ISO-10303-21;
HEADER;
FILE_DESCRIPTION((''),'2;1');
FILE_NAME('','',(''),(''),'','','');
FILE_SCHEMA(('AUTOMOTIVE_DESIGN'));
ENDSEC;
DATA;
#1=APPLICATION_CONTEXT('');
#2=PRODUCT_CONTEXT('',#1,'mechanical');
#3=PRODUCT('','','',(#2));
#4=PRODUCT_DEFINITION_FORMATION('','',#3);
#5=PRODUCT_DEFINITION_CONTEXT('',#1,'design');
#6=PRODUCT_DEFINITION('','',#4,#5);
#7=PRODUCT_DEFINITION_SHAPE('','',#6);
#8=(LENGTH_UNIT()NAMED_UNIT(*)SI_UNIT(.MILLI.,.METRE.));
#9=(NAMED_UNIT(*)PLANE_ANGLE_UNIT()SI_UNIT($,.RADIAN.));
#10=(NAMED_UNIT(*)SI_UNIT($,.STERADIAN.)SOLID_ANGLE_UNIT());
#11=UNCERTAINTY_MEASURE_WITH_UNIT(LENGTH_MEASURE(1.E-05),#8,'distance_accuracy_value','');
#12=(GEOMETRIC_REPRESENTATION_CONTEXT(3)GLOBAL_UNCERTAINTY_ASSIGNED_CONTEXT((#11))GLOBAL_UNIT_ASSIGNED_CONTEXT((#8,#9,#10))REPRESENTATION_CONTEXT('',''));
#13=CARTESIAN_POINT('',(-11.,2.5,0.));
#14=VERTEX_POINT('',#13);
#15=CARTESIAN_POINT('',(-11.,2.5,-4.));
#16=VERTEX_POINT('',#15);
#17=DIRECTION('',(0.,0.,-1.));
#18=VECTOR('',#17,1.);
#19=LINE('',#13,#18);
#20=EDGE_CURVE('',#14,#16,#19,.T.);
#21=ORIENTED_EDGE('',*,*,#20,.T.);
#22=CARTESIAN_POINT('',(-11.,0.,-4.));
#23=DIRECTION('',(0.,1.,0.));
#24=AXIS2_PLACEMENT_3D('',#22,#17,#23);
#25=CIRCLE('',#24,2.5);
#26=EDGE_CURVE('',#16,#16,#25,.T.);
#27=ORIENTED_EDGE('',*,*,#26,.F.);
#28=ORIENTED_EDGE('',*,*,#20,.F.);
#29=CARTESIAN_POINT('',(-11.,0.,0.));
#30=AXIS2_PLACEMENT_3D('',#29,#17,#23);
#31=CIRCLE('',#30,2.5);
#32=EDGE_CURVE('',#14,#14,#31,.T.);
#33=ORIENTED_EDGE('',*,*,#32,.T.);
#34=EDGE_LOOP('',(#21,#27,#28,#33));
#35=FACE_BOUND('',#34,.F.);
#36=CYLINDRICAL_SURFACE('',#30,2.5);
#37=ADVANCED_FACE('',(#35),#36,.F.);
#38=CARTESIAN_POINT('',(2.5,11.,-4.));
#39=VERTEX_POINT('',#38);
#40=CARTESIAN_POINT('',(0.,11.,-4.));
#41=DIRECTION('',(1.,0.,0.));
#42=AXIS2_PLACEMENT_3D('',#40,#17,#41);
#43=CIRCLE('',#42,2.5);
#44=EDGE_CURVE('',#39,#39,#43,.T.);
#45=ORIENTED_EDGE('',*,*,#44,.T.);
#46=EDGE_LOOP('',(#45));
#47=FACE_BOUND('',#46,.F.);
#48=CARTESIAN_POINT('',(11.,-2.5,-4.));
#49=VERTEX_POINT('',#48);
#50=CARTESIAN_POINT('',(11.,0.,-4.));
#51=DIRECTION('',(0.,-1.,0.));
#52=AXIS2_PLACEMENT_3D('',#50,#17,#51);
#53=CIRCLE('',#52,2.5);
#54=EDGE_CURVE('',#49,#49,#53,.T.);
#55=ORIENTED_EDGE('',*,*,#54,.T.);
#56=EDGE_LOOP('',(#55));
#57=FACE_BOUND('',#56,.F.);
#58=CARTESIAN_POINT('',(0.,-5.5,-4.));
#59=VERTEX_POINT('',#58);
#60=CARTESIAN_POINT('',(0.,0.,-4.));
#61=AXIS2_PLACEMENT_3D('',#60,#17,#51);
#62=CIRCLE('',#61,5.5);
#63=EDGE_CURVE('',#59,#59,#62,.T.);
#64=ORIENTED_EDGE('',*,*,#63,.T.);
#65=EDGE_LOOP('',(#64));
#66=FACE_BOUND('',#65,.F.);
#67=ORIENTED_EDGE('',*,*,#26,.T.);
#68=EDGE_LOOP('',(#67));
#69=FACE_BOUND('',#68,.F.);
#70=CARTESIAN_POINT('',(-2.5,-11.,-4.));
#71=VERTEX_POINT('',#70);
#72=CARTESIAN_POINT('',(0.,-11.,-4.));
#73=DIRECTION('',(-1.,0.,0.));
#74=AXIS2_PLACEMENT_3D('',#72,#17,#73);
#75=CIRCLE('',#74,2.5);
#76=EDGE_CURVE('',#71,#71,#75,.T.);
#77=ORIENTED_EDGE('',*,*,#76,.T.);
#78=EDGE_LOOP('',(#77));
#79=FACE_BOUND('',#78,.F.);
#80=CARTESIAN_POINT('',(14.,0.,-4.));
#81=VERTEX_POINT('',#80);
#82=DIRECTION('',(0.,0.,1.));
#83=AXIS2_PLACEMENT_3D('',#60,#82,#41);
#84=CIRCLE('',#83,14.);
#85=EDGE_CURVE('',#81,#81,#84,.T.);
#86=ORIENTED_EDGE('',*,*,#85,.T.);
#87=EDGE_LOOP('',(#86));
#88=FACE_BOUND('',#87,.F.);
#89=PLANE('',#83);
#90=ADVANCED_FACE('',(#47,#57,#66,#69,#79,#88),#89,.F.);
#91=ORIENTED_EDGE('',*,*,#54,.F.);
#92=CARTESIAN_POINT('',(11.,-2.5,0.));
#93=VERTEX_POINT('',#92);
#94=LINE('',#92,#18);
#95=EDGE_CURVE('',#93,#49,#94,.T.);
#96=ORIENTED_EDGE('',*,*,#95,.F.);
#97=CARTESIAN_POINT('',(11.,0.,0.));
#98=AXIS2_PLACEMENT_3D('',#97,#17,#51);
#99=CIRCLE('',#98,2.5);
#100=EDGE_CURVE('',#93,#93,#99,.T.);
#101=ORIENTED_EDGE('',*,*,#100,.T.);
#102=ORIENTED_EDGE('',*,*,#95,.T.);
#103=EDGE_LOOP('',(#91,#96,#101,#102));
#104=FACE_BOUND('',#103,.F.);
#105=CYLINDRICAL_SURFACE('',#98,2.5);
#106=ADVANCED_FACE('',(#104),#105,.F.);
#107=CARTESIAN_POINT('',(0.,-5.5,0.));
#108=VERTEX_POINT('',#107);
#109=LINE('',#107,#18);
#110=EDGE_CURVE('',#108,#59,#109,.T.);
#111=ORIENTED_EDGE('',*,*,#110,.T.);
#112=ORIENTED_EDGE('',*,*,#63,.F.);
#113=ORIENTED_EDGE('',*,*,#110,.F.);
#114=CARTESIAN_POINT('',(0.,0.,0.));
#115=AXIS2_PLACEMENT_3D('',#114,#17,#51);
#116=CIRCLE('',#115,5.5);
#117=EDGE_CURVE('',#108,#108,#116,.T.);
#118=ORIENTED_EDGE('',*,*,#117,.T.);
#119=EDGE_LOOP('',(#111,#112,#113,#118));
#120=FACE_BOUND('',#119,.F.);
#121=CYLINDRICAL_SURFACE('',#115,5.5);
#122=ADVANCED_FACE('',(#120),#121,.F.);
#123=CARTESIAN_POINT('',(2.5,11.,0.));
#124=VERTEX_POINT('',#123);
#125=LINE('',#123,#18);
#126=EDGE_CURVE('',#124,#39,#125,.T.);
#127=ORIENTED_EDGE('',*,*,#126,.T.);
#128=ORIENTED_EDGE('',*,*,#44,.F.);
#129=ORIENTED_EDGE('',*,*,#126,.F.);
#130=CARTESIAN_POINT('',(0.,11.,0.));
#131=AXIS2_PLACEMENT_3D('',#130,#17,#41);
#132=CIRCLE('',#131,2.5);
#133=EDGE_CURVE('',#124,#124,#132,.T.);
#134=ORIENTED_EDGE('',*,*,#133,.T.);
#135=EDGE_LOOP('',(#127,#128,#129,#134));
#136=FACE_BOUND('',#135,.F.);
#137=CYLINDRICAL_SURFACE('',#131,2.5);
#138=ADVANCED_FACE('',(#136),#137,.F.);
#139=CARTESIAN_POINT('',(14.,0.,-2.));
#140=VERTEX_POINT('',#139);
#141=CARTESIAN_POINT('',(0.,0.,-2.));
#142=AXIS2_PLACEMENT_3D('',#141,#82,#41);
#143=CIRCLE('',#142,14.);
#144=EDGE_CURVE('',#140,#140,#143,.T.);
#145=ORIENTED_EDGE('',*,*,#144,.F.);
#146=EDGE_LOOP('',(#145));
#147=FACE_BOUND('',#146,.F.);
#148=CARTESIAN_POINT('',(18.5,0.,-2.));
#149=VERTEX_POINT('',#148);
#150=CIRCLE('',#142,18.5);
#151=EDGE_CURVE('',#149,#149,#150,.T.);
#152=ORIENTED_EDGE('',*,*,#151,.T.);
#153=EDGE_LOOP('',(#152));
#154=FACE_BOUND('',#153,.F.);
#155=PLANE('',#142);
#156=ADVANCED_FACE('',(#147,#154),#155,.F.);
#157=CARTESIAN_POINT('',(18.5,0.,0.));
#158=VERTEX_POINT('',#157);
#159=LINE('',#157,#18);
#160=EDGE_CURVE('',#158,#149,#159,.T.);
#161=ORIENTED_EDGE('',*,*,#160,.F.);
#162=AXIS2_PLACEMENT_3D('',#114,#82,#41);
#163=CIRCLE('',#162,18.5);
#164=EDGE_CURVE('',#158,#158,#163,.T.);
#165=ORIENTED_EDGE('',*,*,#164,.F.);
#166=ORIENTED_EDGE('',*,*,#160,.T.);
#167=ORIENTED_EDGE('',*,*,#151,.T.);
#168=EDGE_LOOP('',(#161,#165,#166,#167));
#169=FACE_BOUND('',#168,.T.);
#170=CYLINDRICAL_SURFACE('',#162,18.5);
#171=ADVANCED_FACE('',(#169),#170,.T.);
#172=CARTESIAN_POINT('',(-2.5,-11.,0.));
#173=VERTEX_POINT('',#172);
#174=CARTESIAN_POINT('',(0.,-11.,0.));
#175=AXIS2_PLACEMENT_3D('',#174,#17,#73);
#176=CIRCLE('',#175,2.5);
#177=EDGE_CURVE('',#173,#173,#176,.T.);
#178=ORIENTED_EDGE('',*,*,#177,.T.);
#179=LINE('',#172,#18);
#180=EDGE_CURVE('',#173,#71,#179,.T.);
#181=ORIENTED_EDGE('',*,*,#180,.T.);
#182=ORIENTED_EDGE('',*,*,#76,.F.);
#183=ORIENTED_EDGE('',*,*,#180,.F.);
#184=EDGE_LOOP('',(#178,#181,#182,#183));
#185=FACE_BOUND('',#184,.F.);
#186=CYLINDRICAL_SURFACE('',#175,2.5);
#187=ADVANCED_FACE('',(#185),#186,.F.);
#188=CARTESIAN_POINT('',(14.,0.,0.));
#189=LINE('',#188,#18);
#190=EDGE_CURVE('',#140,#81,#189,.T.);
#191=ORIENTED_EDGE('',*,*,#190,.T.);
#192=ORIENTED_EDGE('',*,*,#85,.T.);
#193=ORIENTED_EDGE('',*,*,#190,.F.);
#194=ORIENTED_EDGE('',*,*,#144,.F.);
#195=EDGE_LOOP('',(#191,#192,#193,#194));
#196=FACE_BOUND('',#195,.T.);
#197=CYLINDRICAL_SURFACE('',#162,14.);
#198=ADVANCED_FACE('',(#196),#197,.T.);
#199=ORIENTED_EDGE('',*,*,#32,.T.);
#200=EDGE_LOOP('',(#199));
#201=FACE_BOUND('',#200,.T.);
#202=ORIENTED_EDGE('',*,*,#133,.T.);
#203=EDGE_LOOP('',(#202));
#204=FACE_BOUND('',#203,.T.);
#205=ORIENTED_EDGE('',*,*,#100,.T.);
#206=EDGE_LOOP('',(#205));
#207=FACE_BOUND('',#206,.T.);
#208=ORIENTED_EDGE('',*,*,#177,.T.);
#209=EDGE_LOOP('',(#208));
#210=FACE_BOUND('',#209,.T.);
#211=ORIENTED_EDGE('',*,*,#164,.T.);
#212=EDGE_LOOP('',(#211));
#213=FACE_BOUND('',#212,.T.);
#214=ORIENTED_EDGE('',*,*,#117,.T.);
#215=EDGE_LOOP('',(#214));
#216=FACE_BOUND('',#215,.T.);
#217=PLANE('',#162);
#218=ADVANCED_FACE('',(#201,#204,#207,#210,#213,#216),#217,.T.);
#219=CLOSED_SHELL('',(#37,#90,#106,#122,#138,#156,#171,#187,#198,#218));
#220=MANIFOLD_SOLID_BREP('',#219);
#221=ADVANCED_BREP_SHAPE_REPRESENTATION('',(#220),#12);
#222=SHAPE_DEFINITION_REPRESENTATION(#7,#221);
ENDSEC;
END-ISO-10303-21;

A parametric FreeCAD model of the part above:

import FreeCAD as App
import Part
import Sketcher

V = App.Vector

doc = App.newDocument("Part")
body = doc.addObject("PartDesign::Body", "Body")

sketch1 = body.newObject("Sketcher::SketchObject", "Sketch")
sketch1.AttachmentSupport = (doc.getObject("XY_Plane"), [""])
sketch1.MapMode = "FlatFace"
sketch1.addGeometry(Part.Circle(V(0, 0, 0), V(0, 0, 1), 18.5), False)
sketch1.addConstraint([
    Sketcher.Constraint("Coincident", 0, 3, -1, 1),
    Sketcher.Constraint("Diameter", 0, 37.0),
])
pad1 = body.newObject("PartDesign::Pad", "Pad")
pad1.Profile = sketch1
pad1.Length = 2
pad1.Reversed = True

sketch2 = body.newObject("Sketcher::SketchObject", "Sketch001")
sketch2.AttachmentSupport = (doc.getObject("XY_Plane"), [""])
sketch2.MapMode = "FlatFace"
sketch2.addGeometry(Part.Circle(V(0, 0, 0), V(0, 0, 1), 14), False)
sketch2.addConstraint([
    Sketcher.Constraint("Coincident", 0, 3, -1, 1),
    Sketcher.Constraint("Diameter", 0, 28.0),
])
pad2 = body.newObject("PartDesign::Pad", "Pad001")
pad2.Profile = sketch2
pad2.Length = 4
pad2.Reversed = True

sketch3 = body.newObject("Sketcher::SketchObject", "Sketch002")
sketch3.AttachmentSupport = (doc.getObject("XY_Plane"), [""])
sketch3.MapMode = "FlatFace"
sketch3.addGeometry(Part.Circle(V(11, 0, 0), V(0, 0, 1), 2.5), False)
sketch3.addConstraint([
    Sketcher.Constraint("PointOnObject", 0, 3, -1),
    Sketcher.Constraint("Diameter", 0, 5.0),
    Sketcher.Constraint("DistanceX", -1, 1, 0, 3, 11.0),
])
doc.recompute()
hole = body.newObject("PartDesign::Hole", "Hole")
hole.Profile = sketch3
hole.ThreadType = "None"
hole.Diameter = 5
hole.DepthType = "ThroughAll"
doc.recompute()

polarpattern = body.newObject("PartDesign::PolarPattern", "PolarPattern")
polarpattern.Originals = [hole]
polarpattern.Axis = (doc.getObject("Z_Axis"), [""])
polarpattern.Angle = 360
polarpattern.Occurrences = 4
body.Tip = polarpattern

sketch4 = body.newObject("Sketcher::SketchObject", "Sketch003")
sketch4.AttachmentSupport = (doc.getObject("XY_Plane"), [""])
sketch4.MapMode = "FlatFace"
sketch4.addGeometry(Part.Circle(V(0, 0, 0), V(0, 0, 1), 5.5), False)
sketch4.addConstraint([
    Sketcher.Constraint("Coincident", 0, 3, -1, 1),
    Sketcher.Constraint("Diameter", 0, 11.0),
])
doc.recompute()
hole2 = body.newObject("PartDesign::Hole", "Hole001")
hole2.Profile = sketch4
hole2.ThreadType = "None"
hole2.Diameter = 11
hole2.DepthType = "ThroughAll"

doc.recompute()
